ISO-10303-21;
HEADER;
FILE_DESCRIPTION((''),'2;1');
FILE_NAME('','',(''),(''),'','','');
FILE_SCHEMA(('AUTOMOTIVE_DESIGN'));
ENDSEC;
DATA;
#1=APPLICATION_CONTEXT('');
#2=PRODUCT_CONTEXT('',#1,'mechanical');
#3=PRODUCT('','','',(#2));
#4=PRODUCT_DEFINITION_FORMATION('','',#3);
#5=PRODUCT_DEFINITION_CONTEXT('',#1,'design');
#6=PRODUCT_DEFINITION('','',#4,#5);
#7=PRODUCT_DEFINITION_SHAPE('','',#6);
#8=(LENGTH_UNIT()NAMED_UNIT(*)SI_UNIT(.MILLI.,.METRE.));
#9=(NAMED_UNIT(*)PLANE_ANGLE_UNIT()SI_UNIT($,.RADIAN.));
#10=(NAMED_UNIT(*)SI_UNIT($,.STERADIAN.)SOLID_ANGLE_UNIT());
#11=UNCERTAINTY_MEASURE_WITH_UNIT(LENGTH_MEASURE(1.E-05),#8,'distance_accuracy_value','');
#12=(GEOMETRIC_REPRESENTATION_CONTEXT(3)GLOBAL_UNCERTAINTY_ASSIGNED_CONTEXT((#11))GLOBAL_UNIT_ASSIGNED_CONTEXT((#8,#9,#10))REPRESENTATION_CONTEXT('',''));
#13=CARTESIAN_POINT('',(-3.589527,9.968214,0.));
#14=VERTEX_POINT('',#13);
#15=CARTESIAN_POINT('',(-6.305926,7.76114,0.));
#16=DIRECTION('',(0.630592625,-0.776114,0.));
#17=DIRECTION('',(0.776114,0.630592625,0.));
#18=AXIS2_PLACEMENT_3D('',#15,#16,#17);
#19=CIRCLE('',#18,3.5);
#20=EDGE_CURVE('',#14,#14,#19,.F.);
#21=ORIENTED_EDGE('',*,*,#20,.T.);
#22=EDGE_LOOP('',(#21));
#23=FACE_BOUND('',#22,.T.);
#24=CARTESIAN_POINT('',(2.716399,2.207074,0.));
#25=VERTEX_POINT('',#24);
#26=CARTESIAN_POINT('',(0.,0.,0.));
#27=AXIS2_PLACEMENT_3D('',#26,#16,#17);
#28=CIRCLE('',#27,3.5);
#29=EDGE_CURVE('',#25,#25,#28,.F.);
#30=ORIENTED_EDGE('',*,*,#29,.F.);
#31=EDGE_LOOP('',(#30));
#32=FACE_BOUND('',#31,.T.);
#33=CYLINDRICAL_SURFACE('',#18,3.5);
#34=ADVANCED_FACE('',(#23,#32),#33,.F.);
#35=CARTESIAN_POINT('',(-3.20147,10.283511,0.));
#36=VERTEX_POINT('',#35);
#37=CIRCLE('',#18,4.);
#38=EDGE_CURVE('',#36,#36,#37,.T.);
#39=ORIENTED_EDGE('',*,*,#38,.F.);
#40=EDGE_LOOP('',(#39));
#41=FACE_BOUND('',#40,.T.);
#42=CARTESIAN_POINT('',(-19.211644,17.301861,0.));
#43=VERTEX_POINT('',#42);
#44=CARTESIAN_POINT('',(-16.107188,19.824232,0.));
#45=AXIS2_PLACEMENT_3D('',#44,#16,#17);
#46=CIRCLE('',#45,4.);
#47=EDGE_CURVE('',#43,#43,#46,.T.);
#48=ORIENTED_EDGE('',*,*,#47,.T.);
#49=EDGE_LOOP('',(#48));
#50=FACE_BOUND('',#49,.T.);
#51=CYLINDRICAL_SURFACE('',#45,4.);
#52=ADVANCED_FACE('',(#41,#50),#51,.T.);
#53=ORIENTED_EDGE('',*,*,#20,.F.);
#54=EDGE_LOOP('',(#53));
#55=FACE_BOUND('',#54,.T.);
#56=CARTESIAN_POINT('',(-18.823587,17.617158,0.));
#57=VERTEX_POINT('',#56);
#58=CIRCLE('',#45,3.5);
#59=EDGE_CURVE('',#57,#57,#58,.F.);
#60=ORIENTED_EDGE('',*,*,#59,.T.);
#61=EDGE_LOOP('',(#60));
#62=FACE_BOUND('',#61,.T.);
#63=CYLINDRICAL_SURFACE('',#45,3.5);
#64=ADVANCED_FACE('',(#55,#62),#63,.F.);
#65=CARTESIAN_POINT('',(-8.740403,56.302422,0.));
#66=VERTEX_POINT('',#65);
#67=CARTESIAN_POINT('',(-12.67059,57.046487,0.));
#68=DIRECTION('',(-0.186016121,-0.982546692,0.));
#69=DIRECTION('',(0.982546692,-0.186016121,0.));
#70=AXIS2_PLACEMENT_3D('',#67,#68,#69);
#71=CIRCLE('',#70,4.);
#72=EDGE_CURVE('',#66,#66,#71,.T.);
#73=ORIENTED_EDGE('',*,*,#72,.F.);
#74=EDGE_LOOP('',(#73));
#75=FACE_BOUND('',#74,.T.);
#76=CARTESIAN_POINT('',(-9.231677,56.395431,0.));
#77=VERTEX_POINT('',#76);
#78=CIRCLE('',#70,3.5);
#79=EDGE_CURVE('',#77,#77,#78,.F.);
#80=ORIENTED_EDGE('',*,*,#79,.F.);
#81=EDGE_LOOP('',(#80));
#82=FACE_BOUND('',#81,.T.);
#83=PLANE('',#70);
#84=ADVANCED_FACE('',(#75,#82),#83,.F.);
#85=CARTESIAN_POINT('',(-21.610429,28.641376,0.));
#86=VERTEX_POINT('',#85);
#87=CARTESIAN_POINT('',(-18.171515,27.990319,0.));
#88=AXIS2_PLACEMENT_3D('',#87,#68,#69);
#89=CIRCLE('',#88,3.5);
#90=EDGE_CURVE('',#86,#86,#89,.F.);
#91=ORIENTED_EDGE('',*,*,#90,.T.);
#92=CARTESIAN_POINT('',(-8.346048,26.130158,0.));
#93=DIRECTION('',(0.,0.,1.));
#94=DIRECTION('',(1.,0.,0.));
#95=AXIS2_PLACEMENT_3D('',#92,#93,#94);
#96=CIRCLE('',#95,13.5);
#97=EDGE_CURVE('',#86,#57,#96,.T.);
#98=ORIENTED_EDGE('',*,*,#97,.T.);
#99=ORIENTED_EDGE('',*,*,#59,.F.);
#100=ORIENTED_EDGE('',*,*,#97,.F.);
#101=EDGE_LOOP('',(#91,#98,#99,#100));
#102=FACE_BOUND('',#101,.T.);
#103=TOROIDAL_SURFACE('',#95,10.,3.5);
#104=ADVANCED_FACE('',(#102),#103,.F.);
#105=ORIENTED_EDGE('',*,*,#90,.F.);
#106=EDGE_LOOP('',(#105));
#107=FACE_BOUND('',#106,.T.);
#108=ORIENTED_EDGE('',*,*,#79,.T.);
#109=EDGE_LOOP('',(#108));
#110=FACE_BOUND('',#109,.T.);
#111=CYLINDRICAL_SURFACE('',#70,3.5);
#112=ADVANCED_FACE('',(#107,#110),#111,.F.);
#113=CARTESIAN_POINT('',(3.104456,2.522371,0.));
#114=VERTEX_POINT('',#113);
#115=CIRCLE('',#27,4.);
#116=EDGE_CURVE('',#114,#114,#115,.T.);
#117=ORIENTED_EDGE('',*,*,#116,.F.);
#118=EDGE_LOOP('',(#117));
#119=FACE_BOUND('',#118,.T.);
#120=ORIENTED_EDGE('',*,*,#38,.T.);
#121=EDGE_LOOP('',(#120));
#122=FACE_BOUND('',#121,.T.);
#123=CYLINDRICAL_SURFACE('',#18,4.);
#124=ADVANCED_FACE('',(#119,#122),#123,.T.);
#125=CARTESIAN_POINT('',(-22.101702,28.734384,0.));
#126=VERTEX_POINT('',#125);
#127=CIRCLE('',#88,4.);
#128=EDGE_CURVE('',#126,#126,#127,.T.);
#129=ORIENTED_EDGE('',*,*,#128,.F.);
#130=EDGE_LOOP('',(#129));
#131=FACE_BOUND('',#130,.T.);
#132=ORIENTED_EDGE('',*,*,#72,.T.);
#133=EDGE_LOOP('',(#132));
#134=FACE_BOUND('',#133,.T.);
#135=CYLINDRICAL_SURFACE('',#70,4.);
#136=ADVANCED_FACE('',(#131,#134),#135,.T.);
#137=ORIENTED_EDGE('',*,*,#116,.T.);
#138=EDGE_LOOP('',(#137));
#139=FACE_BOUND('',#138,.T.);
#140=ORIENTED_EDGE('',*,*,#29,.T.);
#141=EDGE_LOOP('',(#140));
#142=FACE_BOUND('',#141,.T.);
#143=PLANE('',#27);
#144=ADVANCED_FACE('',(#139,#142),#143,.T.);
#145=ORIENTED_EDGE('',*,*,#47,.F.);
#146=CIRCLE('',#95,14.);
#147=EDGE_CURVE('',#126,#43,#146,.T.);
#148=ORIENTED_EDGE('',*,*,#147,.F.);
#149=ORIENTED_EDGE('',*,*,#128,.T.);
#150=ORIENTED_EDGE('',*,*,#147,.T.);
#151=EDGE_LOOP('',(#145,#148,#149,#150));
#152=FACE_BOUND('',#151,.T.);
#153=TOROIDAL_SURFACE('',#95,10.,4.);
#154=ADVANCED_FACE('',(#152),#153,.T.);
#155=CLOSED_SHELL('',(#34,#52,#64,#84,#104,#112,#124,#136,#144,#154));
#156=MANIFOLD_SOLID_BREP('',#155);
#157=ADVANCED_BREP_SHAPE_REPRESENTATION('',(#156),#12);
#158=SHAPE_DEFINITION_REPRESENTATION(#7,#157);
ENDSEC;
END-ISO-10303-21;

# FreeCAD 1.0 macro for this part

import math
import FreeCAD as App
import Part
import Sketcher
Q = App.Units.Quantity

doc = App.newDocument("Part")
body = doc.addObject("PartDesign::Body", "Body")

sketch1 = doc.addObject("Sketcher::SketchObject", "Sketch")
body.addObject(sketch1)
sketch1.Placement = App.Placement(App.Vector(0, 0, 0), App.Rotation(App.Vector(-0.776114, -0.630592625, 0), App.Vector(0, 0, -1), App.Vector(0.630592625, -0.776114, 0), "ZXY"))
sketch1.addGeometry([
    Part.Circle(App.Vector(0, 0, 0), App.Vector(0, 0, 1), 4),
    Part.Circle(App.Vector(0, 0, 0), App.Vector(0, 0, 1), 3.5),
], False)
sketch1.addConstraint([
    Sketcher.Constraint("Coincident", 0, 3, -1, 1),
    Sketcher.Constraint("Coincident", 1, 3, -1, 1),
    Sketcher.Constraint("Diameter", 0, Q("8 mm")),
    Sketcher.Constraint("Diameter", 1, Q("7 mm")),
])

sketch2 = doc.addObject("Sketcher::SketchObject", "Sketch001")
body.addObject(sketch2)
sketch2.AttachmentSupport = (doc.XY_Plane, [""])
sketch2.MapMode = "FlatFace"
sketch2.addGeometry([
    Part.LineSegment(App.Vector(-13, 57, 0), App.Vector(-18, 28, 0)),
    Part.ArcOfCircle(Part.Circle(App.Vector(-8, 26, 0), App.Vector(0, 0, 1), 10), math.radians(169), math.radians(219)),
    Part.LineSegment(App.Vector(-16, 20, 0), App.Vector(-6, 8, 0)),
    Part.LineSegment(App.Vector(-6, 8, 0), App.Vector(0, 0, 0)),
], False)
sketch2.addConstraint([
    Sketcher.Constraint("Tangent", 0, 2, 1, 1),
    Sketcher.Constraint("Tangent", 1, 2, 2, 1),
    Sketcher.Constraint("Coincident", 2, 2, 3, 1),
    Sketcher.Constraint("Coincident", 3, 2, -1, 1),
    Sketcher.Constraint("Parallel", 2, 3),
    Sketcher.Constraint("Radius", 1, Q("10 mm")),
    Sketcher.Constraint("Distance", 3, Q("10 mm")),
    Sketcher.Constraint("DistanceX", 1, 2, 0, 1, Q("3.436598 mm")),
    Sketcher.Constraint("DistanceX", 1, 3, -1, 1, Q("8.346048 mm")),
    Sketcher.Constraint("DistanceX", 0, 1, -1, 1, Q("12.67059 mm")),
    Sketcher.Constraint("DistanceY", -1, 1, 0, 2, Q("27.990319 mm")),
])
doc.recompute()

additivepipe = doc.addObject("PartDesign::AdditivePipe", "AdditivePipe")
body.addObject(additivepipe)
additivepipe.Profile = sketch1
additivepipe.Spine = (sketch2, ["Edge1", "Edge2", "Edge3", "Edge4"])

doc.recompute()
